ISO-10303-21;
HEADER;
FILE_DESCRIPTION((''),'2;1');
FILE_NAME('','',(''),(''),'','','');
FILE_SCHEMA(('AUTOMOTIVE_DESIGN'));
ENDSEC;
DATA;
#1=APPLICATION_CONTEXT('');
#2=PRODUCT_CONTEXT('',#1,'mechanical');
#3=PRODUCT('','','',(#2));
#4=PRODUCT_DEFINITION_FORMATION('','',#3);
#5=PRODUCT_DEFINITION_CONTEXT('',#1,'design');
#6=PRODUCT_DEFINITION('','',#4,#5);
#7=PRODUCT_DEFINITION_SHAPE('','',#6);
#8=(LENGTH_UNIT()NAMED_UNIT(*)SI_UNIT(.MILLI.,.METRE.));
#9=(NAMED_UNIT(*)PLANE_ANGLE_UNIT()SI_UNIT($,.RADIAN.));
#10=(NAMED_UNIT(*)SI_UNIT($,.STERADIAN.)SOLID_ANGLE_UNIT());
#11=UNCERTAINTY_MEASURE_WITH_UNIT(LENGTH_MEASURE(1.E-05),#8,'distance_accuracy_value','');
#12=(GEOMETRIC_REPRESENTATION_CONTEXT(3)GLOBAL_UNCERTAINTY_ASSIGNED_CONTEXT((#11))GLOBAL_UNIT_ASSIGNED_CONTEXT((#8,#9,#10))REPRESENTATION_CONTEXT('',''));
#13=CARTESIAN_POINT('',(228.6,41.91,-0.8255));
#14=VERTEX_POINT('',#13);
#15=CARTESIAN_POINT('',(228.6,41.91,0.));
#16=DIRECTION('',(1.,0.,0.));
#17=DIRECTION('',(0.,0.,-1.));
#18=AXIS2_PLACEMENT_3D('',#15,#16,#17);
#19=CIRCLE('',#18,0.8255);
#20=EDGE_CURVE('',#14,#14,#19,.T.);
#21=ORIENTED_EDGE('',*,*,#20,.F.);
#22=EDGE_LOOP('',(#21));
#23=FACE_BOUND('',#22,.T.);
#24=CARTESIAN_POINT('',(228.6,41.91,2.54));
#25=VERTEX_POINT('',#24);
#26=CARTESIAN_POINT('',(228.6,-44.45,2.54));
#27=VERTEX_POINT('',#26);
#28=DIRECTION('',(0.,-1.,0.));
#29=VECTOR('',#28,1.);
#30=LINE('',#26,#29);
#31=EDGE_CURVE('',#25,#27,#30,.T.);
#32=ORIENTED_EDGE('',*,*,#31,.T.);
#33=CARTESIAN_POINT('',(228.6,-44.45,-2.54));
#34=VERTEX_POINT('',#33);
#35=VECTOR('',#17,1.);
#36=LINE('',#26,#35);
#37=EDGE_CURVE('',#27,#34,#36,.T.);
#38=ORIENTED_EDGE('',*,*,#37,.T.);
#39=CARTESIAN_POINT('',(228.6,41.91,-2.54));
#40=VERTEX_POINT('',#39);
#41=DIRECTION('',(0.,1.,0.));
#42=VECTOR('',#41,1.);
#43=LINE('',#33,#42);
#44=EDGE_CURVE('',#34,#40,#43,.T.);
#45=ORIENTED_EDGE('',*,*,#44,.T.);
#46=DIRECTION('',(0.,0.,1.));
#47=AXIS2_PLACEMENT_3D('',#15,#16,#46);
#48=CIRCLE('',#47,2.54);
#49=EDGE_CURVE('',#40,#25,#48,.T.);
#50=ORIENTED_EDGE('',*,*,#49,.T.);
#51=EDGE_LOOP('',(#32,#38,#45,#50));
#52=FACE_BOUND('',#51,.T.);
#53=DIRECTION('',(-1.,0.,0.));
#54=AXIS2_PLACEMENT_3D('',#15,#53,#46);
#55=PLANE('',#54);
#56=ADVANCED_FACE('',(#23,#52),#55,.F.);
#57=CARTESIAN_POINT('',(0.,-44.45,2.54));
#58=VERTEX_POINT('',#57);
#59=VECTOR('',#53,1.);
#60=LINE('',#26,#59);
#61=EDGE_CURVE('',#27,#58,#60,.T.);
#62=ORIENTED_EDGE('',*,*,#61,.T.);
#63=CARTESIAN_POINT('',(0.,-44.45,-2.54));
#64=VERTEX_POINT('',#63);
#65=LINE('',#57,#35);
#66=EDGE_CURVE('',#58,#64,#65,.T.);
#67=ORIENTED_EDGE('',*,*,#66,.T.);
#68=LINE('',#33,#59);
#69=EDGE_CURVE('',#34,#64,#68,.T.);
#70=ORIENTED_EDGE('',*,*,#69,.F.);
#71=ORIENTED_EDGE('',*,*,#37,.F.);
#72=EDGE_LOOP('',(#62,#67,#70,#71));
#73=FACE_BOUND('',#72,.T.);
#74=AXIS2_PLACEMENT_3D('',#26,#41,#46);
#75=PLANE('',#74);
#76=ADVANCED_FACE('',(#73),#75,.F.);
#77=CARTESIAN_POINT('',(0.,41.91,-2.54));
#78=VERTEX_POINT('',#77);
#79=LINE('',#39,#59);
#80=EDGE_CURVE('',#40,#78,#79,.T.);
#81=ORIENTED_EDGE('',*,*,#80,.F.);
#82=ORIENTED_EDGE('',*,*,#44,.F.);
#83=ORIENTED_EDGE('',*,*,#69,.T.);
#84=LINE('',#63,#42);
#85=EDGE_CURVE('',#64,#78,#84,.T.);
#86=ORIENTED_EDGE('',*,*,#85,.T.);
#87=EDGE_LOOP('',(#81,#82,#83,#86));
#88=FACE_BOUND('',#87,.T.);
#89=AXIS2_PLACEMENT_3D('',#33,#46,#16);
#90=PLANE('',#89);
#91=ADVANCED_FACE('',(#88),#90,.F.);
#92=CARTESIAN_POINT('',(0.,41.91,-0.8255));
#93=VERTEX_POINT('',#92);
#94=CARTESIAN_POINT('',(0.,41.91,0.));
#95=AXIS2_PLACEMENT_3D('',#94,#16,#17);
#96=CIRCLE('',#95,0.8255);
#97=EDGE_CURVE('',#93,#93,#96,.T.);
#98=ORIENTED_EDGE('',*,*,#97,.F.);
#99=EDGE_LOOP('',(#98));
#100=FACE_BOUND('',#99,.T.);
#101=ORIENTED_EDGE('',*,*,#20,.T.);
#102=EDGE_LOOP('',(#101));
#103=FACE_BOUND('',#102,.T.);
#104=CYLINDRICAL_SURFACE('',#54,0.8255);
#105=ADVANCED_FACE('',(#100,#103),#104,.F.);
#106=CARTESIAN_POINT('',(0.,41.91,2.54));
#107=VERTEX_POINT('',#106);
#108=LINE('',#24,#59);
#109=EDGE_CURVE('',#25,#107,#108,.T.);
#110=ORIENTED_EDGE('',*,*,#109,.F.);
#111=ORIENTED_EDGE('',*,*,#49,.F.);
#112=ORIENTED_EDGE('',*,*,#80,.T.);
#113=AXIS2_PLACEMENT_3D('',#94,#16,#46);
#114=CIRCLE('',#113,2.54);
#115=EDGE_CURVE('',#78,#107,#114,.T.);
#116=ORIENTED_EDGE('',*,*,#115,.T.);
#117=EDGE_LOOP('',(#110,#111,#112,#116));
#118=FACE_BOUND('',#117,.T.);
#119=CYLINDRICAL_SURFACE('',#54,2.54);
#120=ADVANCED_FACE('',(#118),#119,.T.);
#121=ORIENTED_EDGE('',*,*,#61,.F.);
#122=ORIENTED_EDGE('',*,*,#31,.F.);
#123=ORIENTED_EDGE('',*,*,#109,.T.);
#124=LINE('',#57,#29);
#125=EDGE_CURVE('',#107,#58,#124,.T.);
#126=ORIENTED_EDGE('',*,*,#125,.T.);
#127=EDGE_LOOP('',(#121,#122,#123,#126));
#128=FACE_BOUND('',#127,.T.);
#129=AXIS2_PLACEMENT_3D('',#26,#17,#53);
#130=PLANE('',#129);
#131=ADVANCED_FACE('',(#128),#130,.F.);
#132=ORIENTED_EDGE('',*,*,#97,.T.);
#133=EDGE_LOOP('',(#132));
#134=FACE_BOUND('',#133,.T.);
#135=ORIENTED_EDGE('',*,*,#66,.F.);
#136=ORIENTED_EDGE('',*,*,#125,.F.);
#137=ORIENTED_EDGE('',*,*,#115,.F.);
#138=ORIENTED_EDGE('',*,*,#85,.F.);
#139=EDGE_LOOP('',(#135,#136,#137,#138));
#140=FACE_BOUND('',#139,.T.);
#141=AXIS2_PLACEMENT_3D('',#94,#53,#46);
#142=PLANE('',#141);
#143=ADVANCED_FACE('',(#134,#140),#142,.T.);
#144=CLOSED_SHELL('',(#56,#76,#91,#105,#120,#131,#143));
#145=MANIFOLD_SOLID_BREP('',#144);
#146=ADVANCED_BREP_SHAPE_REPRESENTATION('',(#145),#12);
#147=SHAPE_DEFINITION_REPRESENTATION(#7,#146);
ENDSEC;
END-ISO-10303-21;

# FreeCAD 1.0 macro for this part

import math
import FreeCAD as App
import Part
import Sketcher
from FreeCAD import Vector
Q = App.Units.Quantity

doc = App.newDocument("Part")
body = doc.addObject("PartDesign::Body", "Body")

# Sketch on YZ plane
sketch1 = body.newObject("Sketcher::SketchObject", "Sketch")
sketch1.AttachmentSupport = (doc.getObject("YZ_Plane"), [""])
sketch1.MapMode = "FlatFace"
sketch1.addGeometry(Part.LineSegment(Vector(-44.45, 2.54, 0), Vector(-44.45, -2.54, 0)), False)
sketch1.addGeometry(Part.LineSegment(Vector(-44.45, -2.54, 0), Vector(41.91, -2.54, 0)), False)
sketch1.addGeometry(Part.ArcOfCircle(Part.Circle(Vector(41.91, 0, 0), Vector(0, 0, 1), 2.54), math.radians(-90), math.radians(90)), False)
sketch1.addGeometry(Part.LineSegment(Vector(41.91, 2.54, 0), Vector(-44.45, 2.54, 0)), False)
sketch1.addGeometry(Part.Circle(Vector(41.91, 0, 0), Vector(0, 0, 1), 0.8255), False)
sketch1.addConstraint(Sketcher.Constraint("Coincident", 0, 2, 1, 1))
sketch1.addConstraint(Sketcher.Constraint("Tangent", 1, 2, 2, 1))
sketch1.addConstraint(Sketcher.Constraint("Tangent", 2, 2, 3, 1))
sketch1.addConstraint(Sketcher.Constraint("Coincident", 3, 2, 0, 1))
sketch1.addConstraint(Sketcher.Constraint("Vertical", 0))
sketch1.addConstraint(Sketcher.Constraint("Horizontal", 1))
sketch1.addConstraint(Sketcher.Constraint("Horizontal", 3))
sketch1.addConstraint(Sketcher.Constraint("Coincident", 4, 3, 2, 3))
sketch1.addConstraint(Sketcher.Constraint("PointOnObject", 2, 3, -1))
sketch1.addConstraint(Sketcher.Constraint("Radius", 2, Q("0.1 in")))
sketch1.addConstraint(Sketcher.Constraint("Diameter", 4, Q("0.065 in")))
sketch1.addConstraint(Sketcher.Constraint("DistanceX", 1, 1, 1, 2, Q("3.4 in")))
sketch1.addConstraint(Sketcher.Constraint("DistanceX", -1, 1, 2, 3, Q("1.65 in")))
pad1 = body.newObject("PartDesign::Pad", "Pad")
pad1.Profile = sketch1
pad1.Length = Q("9 in")

doc.recompute()
